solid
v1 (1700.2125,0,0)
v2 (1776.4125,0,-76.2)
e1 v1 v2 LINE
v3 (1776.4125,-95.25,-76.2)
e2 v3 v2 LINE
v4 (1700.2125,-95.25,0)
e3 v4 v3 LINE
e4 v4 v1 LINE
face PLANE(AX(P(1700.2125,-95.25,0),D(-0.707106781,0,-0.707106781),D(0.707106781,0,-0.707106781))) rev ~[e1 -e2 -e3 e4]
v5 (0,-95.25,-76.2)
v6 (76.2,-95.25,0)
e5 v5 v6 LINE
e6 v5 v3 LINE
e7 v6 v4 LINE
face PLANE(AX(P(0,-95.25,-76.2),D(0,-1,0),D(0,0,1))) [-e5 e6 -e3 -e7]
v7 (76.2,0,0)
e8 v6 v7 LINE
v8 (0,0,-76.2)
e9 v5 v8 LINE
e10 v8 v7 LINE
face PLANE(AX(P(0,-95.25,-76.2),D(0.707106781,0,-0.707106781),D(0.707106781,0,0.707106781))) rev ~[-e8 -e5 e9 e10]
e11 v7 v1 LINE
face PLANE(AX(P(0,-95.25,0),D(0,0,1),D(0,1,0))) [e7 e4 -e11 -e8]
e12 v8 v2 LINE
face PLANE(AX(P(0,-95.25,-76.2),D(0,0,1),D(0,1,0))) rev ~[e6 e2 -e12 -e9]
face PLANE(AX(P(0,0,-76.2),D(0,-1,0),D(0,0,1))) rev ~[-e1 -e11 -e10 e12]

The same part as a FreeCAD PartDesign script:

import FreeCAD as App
import Part
import Sketcher
from FreeCAD import Vector
Q = App.Units.Quantity


def add_polygon(sketch, points):
    """Adds a closed chain of lines whose ends are joined by coincident constraints."""
    first, n = sketch.GeometryCount, len(points)
    for a, b in zip(points, points[1:] + points[:1]):
        sketch.addGeometry(Part.LineSegment(App.Vector(*a, 0), App.Vector(*b, 0)), False)
    for i in range(n):
        sketch.addConstraint(Sketcher.Constraint("Coincident", first + i, 2, first + (i + 1) % n, 1))

doc = App.newDocument("Part")
params = doc.addObject("Spreadsheet::Sheet", "Params")
for row, (alias, value) in enumerate([
    ("sketch1_height", "3 in"),
    ("sketch1_width", "3.75 in"),
    ("pad1_length", "69.9375 in"),
    ("sketch2_width", "3 in"),
], start=1):
    params.set(f"A{row}", alias)
    params.set(f"B{row}", "=" + value)
    params.setAlias(f"B{row}", alias)

body = doc.addObject("PartDesign::Body", "Body")

sketch1 = doc.addObject("Sketcher::SketchObject", "Sketch")
body.addObject(sketch1)
sketch1.AttachmentSupport = (doc.YZ_Plane, [""])
sketch1.MapMode = "FlatFace"
add_polygon(sketch1, [(-95, 0), (-95, -76), (0, -76), (0, 0)])
sketch1.addConstraint([
    Sketcher.Constraint("Vertical", 0),
    Sketcher.Constraint("Horizontal", 1),
    Sketcher.Constraint("Vertical", 2),
    Sketcher.Constraint("Horizontal", 3),
    Sketcher.Constraint("Coincident", 2, 2, -1, 1),
    Sketcher.Constraint("DistanceY", 0, 2, 0, 1, Q("3 in")),
    Sketcher.Constraint("DistanceX", 1, 1, 1, 2, Q("3.75 in")),
])
sketch1.setExpression("Constraints[9]", "Params.sketch1_height")
sketch1.setExpression("Constraints[10]", "Params.sketch1_width")
pad1 = doc.addObject("PartDesign::Pad", "Pad")
body.addObject(pad1)
pad1.Profile = sketch1
pad1.setExpression("Length", "Params.pad1_length")

sketch2 = doc.addObject("Sketcher::SketchObject", "Sketch001")
body.addObject(sketch2)
sketch2.AttachmentSupport = (doc.XZ_Plane, [""])
sketch2.MapMode = "FlatFace"
sketch2.AttachmentOffset = App.Placement(Vector(0, 0, 3.75 * 25.4), App.Rotation())
add_polygon(sketch2, [(0, 0), (0, -76), (76, 0)])
add_polygon(sketch2, [(1776, -76), (1776, 0), (1700, 0)])
sketch2.addConstraint([
    Sketcher.Constraint("Vertical", 0),
    Sketcher.Constraint("Horizontal", 2),
    Sketcher.Constraint("Vertical", 3),
    Sketcher.Constraint("Horizontal", 4),
    Sketcher.Constraint("Coincident", 2, 2, -1, 1),
    Sketcher.Constraint("PointOnObject", 3, 2, -1),
    Sketcher.Constraint("Perpendicular", 1, 5),
    Sketcher.Constraint("Horizontal", 0, 2, 5, 2),
    Sketcher.Constraint("Equal", 2, 4),
    Sketcher.Constraint("DistanceX", 2, 2, 2, 1, Q("3 in")),
    Sketcher.Constraint("DistanceX", -1, 1, 3, 2, Q("69.9375 in")),
])
sketch2.setExpression("Constraints[15]", "Params.sketch2_width")
pocket1 = doc.addObject("PartDesign::Pocket", "Pocket")
body.addObject(pocket1)
pocket1.Profile = sketch2
pocket1.Type = "ThroughAll"

doc.recompute()
